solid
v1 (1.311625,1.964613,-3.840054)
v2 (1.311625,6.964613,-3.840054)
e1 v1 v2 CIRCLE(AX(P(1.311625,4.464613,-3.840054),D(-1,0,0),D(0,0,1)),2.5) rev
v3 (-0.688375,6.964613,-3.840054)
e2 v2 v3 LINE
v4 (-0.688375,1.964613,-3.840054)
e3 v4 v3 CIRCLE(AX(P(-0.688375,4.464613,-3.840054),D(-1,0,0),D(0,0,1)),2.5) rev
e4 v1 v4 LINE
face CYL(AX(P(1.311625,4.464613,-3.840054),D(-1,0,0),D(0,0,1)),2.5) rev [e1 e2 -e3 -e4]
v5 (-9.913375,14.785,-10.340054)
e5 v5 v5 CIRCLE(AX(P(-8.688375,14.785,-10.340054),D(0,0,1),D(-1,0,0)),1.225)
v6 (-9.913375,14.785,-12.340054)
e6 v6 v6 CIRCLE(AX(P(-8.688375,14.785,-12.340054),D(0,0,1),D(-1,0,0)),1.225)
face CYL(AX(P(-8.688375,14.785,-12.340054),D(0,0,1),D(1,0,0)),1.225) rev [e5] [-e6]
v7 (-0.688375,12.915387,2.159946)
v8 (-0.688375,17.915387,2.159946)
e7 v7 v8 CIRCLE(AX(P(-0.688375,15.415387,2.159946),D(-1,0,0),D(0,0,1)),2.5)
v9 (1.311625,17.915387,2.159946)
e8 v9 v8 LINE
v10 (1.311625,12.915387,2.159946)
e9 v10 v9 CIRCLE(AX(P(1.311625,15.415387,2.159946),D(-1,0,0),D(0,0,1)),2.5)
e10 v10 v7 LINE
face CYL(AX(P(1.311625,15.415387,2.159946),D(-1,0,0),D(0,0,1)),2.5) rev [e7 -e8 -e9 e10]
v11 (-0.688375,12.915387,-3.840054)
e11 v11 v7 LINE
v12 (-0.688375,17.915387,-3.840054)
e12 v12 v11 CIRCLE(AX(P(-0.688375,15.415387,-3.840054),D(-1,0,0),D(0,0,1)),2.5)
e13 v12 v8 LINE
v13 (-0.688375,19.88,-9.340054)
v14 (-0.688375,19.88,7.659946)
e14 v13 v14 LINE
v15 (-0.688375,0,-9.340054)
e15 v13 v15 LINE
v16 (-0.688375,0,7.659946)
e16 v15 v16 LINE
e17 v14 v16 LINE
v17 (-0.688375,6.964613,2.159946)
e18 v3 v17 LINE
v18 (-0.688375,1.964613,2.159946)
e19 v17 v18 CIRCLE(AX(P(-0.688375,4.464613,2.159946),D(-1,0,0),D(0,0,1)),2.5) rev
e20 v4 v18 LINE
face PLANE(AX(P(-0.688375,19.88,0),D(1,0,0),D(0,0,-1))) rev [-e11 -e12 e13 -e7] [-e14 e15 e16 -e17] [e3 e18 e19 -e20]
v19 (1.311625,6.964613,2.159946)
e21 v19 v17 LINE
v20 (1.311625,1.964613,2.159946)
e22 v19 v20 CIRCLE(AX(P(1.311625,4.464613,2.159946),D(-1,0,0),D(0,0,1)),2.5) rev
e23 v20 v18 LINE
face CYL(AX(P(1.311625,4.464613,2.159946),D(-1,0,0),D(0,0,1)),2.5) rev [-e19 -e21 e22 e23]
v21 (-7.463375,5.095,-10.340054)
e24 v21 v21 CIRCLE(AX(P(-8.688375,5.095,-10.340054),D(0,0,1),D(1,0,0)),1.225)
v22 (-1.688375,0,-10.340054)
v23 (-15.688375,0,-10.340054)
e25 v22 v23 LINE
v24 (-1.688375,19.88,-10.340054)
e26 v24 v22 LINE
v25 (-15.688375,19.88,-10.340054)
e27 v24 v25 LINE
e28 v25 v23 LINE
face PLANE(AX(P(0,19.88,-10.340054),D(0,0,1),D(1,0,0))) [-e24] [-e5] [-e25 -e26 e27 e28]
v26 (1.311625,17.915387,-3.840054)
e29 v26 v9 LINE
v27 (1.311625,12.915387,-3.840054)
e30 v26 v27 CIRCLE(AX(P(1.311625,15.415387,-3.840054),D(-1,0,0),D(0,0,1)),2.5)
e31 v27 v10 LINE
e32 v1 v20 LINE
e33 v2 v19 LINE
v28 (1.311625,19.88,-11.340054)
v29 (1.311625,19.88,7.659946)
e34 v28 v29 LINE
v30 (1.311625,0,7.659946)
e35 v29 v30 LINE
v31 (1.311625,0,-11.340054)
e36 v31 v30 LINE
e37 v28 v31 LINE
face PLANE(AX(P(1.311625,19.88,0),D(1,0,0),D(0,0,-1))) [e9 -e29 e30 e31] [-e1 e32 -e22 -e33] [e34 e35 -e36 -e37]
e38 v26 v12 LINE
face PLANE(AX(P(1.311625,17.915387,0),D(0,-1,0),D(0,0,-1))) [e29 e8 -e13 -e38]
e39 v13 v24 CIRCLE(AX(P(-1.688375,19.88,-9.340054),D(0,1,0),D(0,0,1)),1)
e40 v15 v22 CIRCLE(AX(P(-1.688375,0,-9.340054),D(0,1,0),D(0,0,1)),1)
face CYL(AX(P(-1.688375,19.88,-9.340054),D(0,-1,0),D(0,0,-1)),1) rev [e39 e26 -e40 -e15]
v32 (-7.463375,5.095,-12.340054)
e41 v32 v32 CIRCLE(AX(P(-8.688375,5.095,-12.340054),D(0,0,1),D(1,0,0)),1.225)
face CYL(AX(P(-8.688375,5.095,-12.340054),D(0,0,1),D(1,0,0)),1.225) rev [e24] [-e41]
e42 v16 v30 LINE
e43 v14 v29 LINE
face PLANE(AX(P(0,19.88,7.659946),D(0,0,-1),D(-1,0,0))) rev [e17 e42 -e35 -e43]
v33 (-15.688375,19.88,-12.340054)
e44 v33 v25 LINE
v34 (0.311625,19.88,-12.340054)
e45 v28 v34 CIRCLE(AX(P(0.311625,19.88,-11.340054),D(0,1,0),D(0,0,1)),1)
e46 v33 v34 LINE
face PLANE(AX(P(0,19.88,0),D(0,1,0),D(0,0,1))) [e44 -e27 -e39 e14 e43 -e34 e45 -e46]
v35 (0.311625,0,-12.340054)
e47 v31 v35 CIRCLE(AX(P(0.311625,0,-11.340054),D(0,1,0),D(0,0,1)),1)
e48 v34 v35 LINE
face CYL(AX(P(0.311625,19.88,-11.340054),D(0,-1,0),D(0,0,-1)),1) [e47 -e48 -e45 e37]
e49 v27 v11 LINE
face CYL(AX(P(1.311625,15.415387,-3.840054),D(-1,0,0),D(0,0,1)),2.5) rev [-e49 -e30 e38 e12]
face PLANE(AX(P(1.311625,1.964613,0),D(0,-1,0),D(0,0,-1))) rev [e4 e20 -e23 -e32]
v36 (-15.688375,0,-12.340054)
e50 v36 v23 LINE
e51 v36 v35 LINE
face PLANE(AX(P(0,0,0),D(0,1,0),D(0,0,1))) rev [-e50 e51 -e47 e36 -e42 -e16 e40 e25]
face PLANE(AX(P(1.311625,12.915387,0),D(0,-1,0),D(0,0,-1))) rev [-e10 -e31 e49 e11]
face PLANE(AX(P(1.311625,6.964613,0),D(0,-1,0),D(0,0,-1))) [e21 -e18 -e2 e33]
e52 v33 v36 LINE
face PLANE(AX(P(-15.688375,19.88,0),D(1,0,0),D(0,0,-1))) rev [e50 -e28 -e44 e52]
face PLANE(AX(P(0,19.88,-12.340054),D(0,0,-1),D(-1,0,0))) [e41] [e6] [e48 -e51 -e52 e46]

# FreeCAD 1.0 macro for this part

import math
import FreeCAD as App
import Part
import Sketcher
from FreeCAD import Vector

doc = App.newDocument("Part")
body = doc.addObject("PartDesign::Body", "Body")

# Sketch on XZ plane
sketch1 = body.newObject("Sketcher::SketchObject", "Sketch")
sketch1.AttachmentSupport = (doc.getObject("XZ_Plane"), [""])
sketch1.MapMode = "FlatFace"
sketch1.addGeometry([
    Part.LineSegment(Vector(-0.688375, -9.340054, 0), Vector(-0.688375, 7.659946, 0)),  # 0
    Part.LineSegment(Vector(-0.688375, 7.659946, 0), Vector(1.311625, 7.659946, 0)),  # 1
    Part.LineSegment(Vector(1.311625, 7.659946, 0), Vector(1.311625, -11.340054, 0)),  # 2
    Part.ArcOfCircle(Part.Circle(Vector(0.311625, -11.340054, 0), Vector(0, 0, 1), 1), math.radians(-90), math.radians(0)),  # 3
    Part.LineSegment(Vector(0.311625, -12.340054, 0), Vector(-15.688375, -12.340054, 0)),  # 4
    Part.LineSegment(Vector(-15.688375, -12.340054, 0), Vector(-15.688375, -10.340054, 0)),  # 5
    Part.LineSegment(Vector(-15.688375, -10.340054, 0), Vector(-1.688375, -10.340054, 0)),  # 6
    Part.ArcOfCircle(Part.Circle(Vector(-1.688375, -9.340054, 0), Vector(0, 0, 1), 1), math.radians(-90), math.radians(0)),  # 7
], False)
sketch1.addConstraint([
    Sketcher.Constraint("Coincident", 0, 2, 1, 1),
    Sketcher.Constraint("Coincident", 1, 2, 2, 1),
    Sketcher.Constraint("Tangent", 2, 2, 3, 2),
    Sketcher.Constraint("Tangent", 3, 1, 4, 1),
    Sketcher.Constraint("Coincident", 4, 2, 5, 1),
    Sketcher.Constraint("Coincident", 5, 2, 6, 1),
    Sketcher.Constraint("Tangent", 6, 2, 7, 1),
    Sketcher.Constraint("Tangent", 7, 2, 0, 1),
    Sketcher.Constraint("Vertical", 0),
    Sketcher.Constraint("Horizontal", 1),
    Sketcher.Constraint("Vertical", 2),
    Sketcher.Constraint("Horizontal", 4),
    Sketcher.Constraint("Vertical", 5),
    Sketcher.Constraint("Horizontal", 6),
    Sketcher.Constraint("Equal", 3, 7),
    Sketcher.Constraint("Equal", 1, 5),
    Sketcher.Constraint("Radius", 3, 1.0),
    Sketcher.Constraint("DistanceX", 1, 1, 1, 2, 2.0),
    Sketcher.Constraint("DistanceX", 4, 2, 4, 1, 16.0),
    Sketcher.Constraint("DistanceY", 0, 1, 0, 2, 17.0),
    Sketcher.Constraint("DistanceX", -1, 1, 3, 3, 0.311625),
    Sketcher.Constraint("DistanceY", 3, 3, -1, 1, 11.340054),
])
pad1 = body.newObject("PartDesign::Pad", "Pad")
pad1.Profile = sketch1
pad1.Length = 19.88
pad1.Reversed = True

# Sketch on XY plane
sketch2 = body.newObject("Sketcher::SketchObject", "Sketch001")
sketch2.AttachmentSupport = (doc.getObject("XY_Plane"), [""])
sketch2.MapMode = "FlatFace"
sketch2.AttachmentOffset = App.Placement(Vector(0, 0, -10.340054), App.Rotation())
sketch2.addGeometry([
    Part.Circle(Vector(-8.688375, 5.095, 0), Vector(0, 0, 1), 1.225),
    Part.Circle(Vector(-8.688375, 14.785, 0), Vector(0, 0, 1), 1.225),
], False)
sketch2.addConstraint([
    Sketcher.Constraint("Equal", 0, 1),
    Sketcher.Constraint("Vertical", 0, 3, 1, 3),
    Sketcher.Constraint("Diameter", 0, 2.45),
    Sketcher.Constraint("DistanceY", 0, 3, 1, 3, 9.69),
    Sketcher.Constraint("DistanceY", -1, 1, 0, 3, 5.095),
    Sketcher.Constraint("DistanceX", 0, 3, -1, 1, 8.688375),
])
pocket1 = body.newObject("PartDesign::Pocket", "Pocket")
pocket1.Profile = sketch2
pocket1.Type = "ThroughAll"

# Sketch on YZ plane
sketch3 = body.newObject("Sketcher::SketchObject", "Sketch002")
sketch3.AttachmentSupport = (doc.getObject("YZ_Plane"), [""])
sketch3.MapMode = "FlatFace"
sketch3.AttachmentOffset = App.Placement(Vector(0, 0, -0.688375), App.Rotation())
sketch3.addGeometry([
    Part.LineSegment(Vector(17.915387, 2.159946, 0), Vector(17.915387, -3.840054, 0)),  # 0
    Part.ArcOfCircle(Part.Circle(Vector(15.415387, -3.840054, 0), Vector(0, 0, 1), 2.5), math.radians(180), math.radians(360)),  # 1
    Part.LineSegment(Vector(12.915387, -3.840054, 0), Vector(12.915387, 2.159946, 0)),  # 2
    Part.ArcOfCircle(Part.Circle(Vector(15.415387, 2.159946, 0), Vector(0, 0, 1), 2.5), math.radians(0), math.radians(180)),  # 3
    Part.LineSegment(Vector(6.964613, 2.159946, 0), Vector(6.964613, -3.840054, 0)),  # 4
    Part.ArcOfCircle(Part.Circle(Vector(4.464613, -3.840054, 0), Vector(0, 0, 1), 2.5), math.radians(180), math.radians(360)),  # 5
    Part.LineSegment(Vector(1.964613, -3.840054, 0), Vector(1.964613, 2.159946, 0)),  # 6
    Part.ArcOfCircle(Part.Circle(Vector(4.464613, 2.159946, 0), Vector(0, 0, 1), 2.5), math.radians(0), math.radians(180)),  # 7
], False)
sketch3.addConstraint([
    Sketcher.Constraint("Tangent", 0, 2, 1, 2),
    Sketcher.Constraint("Tangent", 1, 1, 2, 1),
    Sketcher.Constraint("Tangent", 2, 2, 3, 2),
    Sketcher.Constraint("Tangent", 3, 1, 0, 1),
    Sketcher.Constraint("Tangent", 4, 2, 5, 2),
    Sketcher.Constraint("Tangent", 5, 1, 6, 1),
    Sketcher.Constraint("Tangent", 6, 2, 7, 2),
    Sketcher.Constraint("Tangent", 7, 1, 4, 1),
    Sketcher.Constraint("Vertical", 0),
    Sketcher.Constraint("Vertical", 2),
    Sketcher.Constraint("Vertical", 4),
    Sketcher.Constraint("Vertical", 6),
    Sketcher.Constraint("Equal", 3, 5),
    Sketcher.Constraint("Horizontal", 1, 3, 5, 3),
    Sketcher.Constraint("Horizontal", 3, 3, 7, 3),
    Sketcher.Constraint("Radius", 1, 2.5),
    Sketcher.Constraint("DistanceY", 0, 2, 0, 1, 6.0),
    Sketcher.Constraint("DistanceX", -1, 1, 1, 3, 15.415387),
    Sketcher.Constraint("DistanceY", 1, 3, -1, 1, 3.840054),
    Sketcher.Constraint("DistanceX", -1, 1, 5, 3, 4.464613),
])
pocket2 = body.newObject("PartDesign::Pocket", "Pocket001")
pocket2.Profile = sketch3
pocket2.Type = "ThroughAll"
pocket2.Reversed = True

doc.recompute()
